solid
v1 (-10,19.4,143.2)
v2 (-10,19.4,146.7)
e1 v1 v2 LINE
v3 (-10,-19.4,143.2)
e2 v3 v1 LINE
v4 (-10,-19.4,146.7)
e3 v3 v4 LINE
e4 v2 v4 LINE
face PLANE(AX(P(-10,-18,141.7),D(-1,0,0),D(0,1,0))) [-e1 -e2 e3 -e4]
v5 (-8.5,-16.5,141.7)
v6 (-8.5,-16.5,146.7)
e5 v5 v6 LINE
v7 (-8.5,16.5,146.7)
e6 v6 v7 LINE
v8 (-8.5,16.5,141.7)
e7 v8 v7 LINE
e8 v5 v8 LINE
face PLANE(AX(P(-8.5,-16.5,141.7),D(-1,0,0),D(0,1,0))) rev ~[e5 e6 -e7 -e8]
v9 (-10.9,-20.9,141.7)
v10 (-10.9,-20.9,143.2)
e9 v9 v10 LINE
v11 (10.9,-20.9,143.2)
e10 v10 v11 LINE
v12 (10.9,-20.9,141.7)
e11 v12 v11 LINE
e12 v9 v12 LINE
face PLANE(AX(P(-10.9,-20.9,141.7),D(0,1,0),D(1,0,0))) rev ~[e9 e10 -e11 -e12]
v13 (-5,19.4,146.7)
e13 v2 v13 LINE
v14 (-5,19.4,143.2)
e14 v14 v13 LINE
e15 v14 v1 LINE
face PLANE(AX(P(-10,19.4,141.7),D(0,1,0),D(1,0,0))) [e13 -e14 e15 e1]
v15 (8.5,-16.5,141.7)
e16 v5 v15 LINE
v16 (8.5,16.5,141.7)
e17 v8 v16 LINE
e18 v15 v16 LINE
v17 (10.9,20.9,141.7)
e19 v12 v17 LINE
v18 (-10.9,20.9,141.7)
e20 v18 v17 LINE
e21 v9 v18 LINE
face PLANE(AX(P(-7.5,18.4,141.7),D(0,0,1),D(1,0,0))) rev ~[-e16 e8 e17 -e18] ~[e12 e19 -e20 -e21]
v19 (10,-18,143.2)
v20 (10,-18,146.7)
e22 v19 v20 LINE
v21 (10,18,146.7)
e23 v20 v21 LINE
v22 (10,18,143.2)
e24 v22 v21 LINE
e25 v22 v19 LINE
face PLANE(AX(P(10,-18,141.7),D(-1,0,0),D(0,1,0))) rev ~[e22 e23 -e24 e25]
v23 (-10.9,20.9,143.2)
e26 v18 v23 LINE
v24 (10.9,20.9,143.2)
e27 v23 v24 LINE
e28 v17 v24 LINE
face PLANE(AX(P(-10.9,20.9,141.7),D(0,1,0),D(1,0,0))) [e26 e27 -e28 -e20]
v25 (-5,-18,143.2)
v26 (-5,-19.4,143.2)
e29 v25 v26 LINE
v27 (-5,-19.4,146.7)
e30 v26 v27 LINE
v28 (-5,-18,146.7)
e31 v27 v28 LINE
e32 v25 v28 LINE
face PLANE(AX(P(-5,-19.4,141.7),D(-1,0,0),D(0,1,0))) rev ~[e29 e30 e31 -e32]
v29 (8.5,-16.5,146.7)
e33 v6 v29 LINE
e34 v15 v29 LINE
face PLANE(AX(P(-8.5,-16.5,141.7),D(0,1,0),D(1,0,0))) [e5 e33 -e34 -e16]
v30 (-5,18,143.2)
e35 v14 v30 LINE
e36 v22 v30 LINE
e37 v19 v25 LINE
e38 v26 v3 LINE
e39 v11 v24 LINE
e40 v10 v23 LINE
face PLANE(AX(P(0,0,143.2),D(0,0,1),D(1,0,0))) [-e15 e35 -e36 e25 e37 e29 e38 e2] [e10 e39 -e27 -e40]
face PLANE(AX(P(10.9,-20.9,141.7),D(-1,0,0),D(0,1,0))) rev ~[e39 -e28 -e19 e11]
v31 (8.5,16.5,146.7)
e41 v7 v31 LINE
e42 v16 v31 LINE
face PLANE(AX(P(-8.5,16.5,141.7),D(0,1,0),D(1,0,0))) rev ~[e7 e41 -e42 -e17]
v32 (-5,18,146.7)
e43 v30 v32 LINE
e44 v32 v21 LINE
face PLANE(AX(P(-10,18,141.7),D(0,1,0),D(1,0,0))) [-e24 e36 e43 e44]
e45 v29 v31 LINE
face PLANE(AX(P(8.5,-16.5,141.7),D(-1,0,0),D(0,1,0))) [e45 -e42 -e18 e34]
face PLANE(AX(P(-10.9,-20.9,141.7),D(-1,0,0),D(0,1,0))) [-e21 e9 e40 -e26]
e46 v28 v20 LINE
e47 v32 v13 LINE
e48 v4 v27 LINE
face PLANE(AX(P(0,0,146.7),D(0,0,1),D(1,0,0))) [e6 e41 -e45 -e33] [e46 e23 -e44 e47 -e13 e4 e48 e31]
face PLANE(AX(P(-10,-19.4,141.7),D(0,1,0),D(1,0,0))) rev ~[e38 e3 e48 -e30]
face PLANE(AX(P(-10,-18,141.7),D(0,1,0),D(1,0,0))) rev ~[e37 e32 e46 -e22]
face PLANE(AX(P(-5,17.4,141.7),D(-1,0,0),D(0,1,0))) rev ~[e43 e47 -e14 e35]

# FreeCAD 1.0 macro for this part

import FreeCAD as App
import Part
import Sketcher
from FreeCAD import Vector

doc = App.newDocument("Part")
body = doc.addObject("PartDesign::Body", "Body")

# Sketch on XY plane
sketch1 = body.newObject("Sketcher::SketchObject", "Sketch")
sketch1.AttachmentSupport = (doc.getObject("XY_Plane"), [""])
sketch1.MapMode = "FlatFace"
sketch1.addGeometry([
    Part.LineSegment(Vector(-10, 19.4, 0), Vector(-10, 17.4, 0)),
    Part.LineSegment(Vector(-10, 17.4, 0), Vector(-5, 17.4, 0)),
    Part.LineSegment(Vector(-5, 17.4, 0), Vector(-5, 19.4, 0)),
    Part.LineSegment(Vector(-5, 19.4, 0), Vector(-10, 19.4, 0)),
], False)
sketch1.addConstraint([
    Sketcher.Constraint("Coincident", 0, 2, 1, 1),
    Sketcher.Constraint("Coincident", 1, 2, 2, 1),
    Sketcher.Constraint("Coincident", 2, 2, 3, 1),
    Sketcher.Constraint("Coincident", 3, 2, 0, 1),
    Sketcher.Constraint("Vertical", 0),
    Sketcher.Constraint("Horizontal", 1),
    Sketcher.Constraint("Vertical", 2),
    Sketcher.Constraint("Horizontal", 3),
    Sketcher.Constraint("DistanceX", 1, 1, 1, 2, 5.0),
    Sketcher.Constraint("DistanceY", 0, 2, 0, 1, 2.0),
    Sketcher.Constraint("DistanceX", 0, 2, -1, 1, 10.0),
    Sketcher.Constraint("DistanceY", -1, 1, 0, 2, 17.4),
])
pad1 = body.newObject("PartDesign::Pad", "Pad")
pad1.Profile = sketch1
pad1.Length = 5
body2 = doc.addObject("PartDesign::Body", "Body001")
body2.AllowCompound = True

# Sketch on XY plane
sketch2 = body2.newObject("Sketcher::SketchObject", "Sketch001")
sketch2.AttachmentSupport = (doc.getObject("XY_Plane001"), [""])
sketch2.MapMode = "FlatFace"
sketch2.addGeometry([
    Part.LineSegment(Vector(-10, -17.4, 0), Vector(-10, -19.4, 0)),
    Part.LineSegment(Vector(-10, -19.4, 0), Vector(-5, -19.4, 0)),
    Part.LineSegment(Vector(-5, -19.4, 0), Vector(-5, -17.4, 0)),
    Part.LineSegment(Vector(-5, -17.4, 0), Vector(-10, -17.4, 0)),
], False)
sketch2.addConstraint([
    Sketcher.Constraint("Coincident", 0, 2, 1, 1),
    Sketcher.Constraint("Coincident", 1, 2, 2, 1),
    Sketcher.Constraint("Coincident", 2, 2, 3, 1),
    Sketcher.Constraint("Coincident", 3, 2, 0, 1),
    Sketcher.Constraint("Vertical", 0),
    Sketcher.Constraint("Horizontal", 1),
    Sketcher.Constraint("Vertical", 2),
    Sketcher.Constraint("Horizontal", 3),
    Sketcher.Constraint("DistanceX", 1, 1, 1, 2, 5.0),
    Sketcher.Constraint("DistanceY", 0, 2, 0, 1, 2.0),
    Sketcher.Constraint("DistanceX", 0, 2, -1, 1, 10.0),
    Sketcher.Constraint("DistanceY", 0, 2, -1, 1, 19.4),
])
pad2 = body2.newObject("PartDesign::Pad", "Pad001")
pad2.Profile = sketch2
pad2.Length = 5
doc.recompute()

boolean = body2.newObject("PartDesign::Boolean", "Boolean")
boolean.Type = "Fuse"
boolean.addObjects([body])
body3 = doc.addObject("PartDesign::Body", "Body002")

# Sketch on XY plane
sketch3 = body3.newObject("Sketcher::SketchObject", "Sketch002")
sketch3.AttachmentSupport = (doc.getObject("XY_Plane002"), [""])
sketch3.MapMode = "FlatFace"
sketch3.addGeometry([
    Part.LineSegment(Vector(-8, 16, 0), Vector(-8, -16, 0)),
    Part.LineSegment(Vector(-8, -16, 0), Vector(8, -16, 0)),
    Part.LineSegment(Vector(8, -16, 0), Vector(8, 16, 0)),
    Part.LineSegment(Vector(8, 16, 0), Vector(-8, 16, 0)),
], False)
sketch3.addConstraint([
    Sketcher.Constraint("Coincident", 0, 2, 1, 1),
    Sketcher.Constraint("Coincident", 1, 2, 2, 1),
    Sketcher.Constraint("Coincident", 2, 2, 3, 1),
    Sketcher.Constraint("Coincident", 3, 2, 0, 1),
    Sketcher.Constraint("Vertical", 0),
    Sketcher.Constraint("Horizontal", 1),
    Sketcher.Constraint("Vertical", 2),
    Sketcher.Constraint("Horizontal", 3),
    Sketcher.Constraint("Symmetric", 0, 2, 2, 2, -1, 1),
    Sketcher.Constraint("DistanceX", 1, 1, 1, 2, 17.0),
    Sketcher.Constraint("DistanceY", 0, 2, 0, 1, 33.0),
])
pad3 = body3.newObject("PartDesign::Pad", "Pad002")
pad3.Profile = sketch3
pad3.Length = 5
body4 = doc.addObject("PartDesign::Body", "Body003")

# Sketch on XY plane
sketch4 = body4.newObject("Sketcher::SketchObject", "Sketch003")
sketch4.AttachmentSupport = (doc.getObject("XY_Plane003"), [""])
sketch4.MapMode = "FlatFace"
sketch4.addGeometry([
    Part.LineSegment(Vector(-10, 18, 0), Vector(-10, -18, 0)),
    Part.LineSegment(Vector(-10, -18, 0), Vector(10, -18, 0)),
    Part.LineSegment(Vector(10, -18, 0), Vector(10, 18, 0)),
    Part.LineSegment(Vector(10, 18, 0), Vector(-10, 18, 0)),
], False)
sketch4.addConstraint([
    Sketcher.Constraint("Coincident", 0, 2, 1, 1),
    Sketcher.Constraint("Coincident", 1, 2, 2, 1),
    Sketcher.Constraint("Coincident", 2, 2, 3, 1),
    Sketcher.Constraint("Coincident", 3, 2, 0, 1),
    Sketcher.Constraint("Vertical", 0),
    Sketcher.Constraint("Horizontal", 1),
    Sketcher.Constraint("Vertical", 2),
    Sketcher.Constraint("Horizontal", 3),
    Sketcher.Constraint("Symmetric", 0, 2, 2, 2, -1, 1),
    Sketcher.Constraint("DistanceX", 1, 1, 1, 2, 20.0),
    Sketcher.Constraint("DistanceY", 0, 2, 0, 1, 36.0),
])
pad4 = body4.newObject("PartDesign::Pad", "Pad003")
pad4.Profile = sketch4
pad4.Length = 5
body5 = doc.addObject("PartDesign::Body", "Body004")

# Sketch on XY plane
sketch5 = body5.newObject("Sketcher::SketchObject", "Sketch004")
sketch5.AttachmentSupport = (doc.getObject("XY_Plane004"), [""])
sketch5.MapMode = "FlatFace"
sketch5.addGeometry([
    Part.LineSegment(Vector(-11, 21, 0), Vector(-11, -21, 0)),
    Part.LineSegment(Vector(-11, -21, 0), Vector(11, -21, 0)),
    Part.LineSegment(Vector(11, -21, 0), Vector(11, 21, 0)),
    Part.LineSegment(Vector(11, 21, 0), Vector(-11, 21, 0)),
], False)
sketch5.addConstraint([
    Sketcher.Constraint("Coincident", 0, 2, 1, 1),
    Sketcher.Constraint("Coincident", 1, 2, 2, 1),
    Sketcher.Constraint("Coincident", 2, 2, 3, 1),
    Sketcher.Constraint("Coincident", 3, 2, 0, 1),
    Sketcher.Constraint("Vertical", 0),
    Sketcher.Constraint("Horizontal", 1),
    Sketcher.Constraint("Vertical", 2),
    Sketcher.Constraint("Horizontal", 3),
    Sketcher.Constraint("Symmetric", 0, 2, 2, 2, -1, 1),
    Sketcher.Constraint("DistanceX", 1, 1, 1, 2, 21.8),
    Sketcher.Constraint("DistanceY", 0, 2, 0, 1, 41.8),
])
pad5 = body5.newObject("PartDesign::Pad", "Pad004")
pad5.Profile = sketch5
pad5.Length = 1.5
doc.recompute()

boolean2 = body5.newObject("PartDesign::Boolean", "Boolean001")
boolean2.Type = "Fuse"
boolean2.addObjects([body4])
doc.recompute()

boolean3 = body5.newObject("PartDesign::Boolean", "Boolean002")
boolean3.Type = "Cut"
boolean3.addObjects([body3])
doc.recompute()

boolean4 = body5.newObject("PartDesign::Boolean", "Boolean003")
boolean4.Type = "Fuse"
boolean4.addObjects([body2])
body6 = doc.addObject("PartDesign::Body", "Body005")
doc.recompute()

body5.Placement = App.Placement(Vector(0, 0, 141.7), App.Rotation(Vector(0, 0, 1), 0))
boolean5 = body6.newObject("PartDesign::Boolean", "Boolean004")
boolean5.Type = "Fuse"
boolean5.addObjects([body5])

doc.recompute()
